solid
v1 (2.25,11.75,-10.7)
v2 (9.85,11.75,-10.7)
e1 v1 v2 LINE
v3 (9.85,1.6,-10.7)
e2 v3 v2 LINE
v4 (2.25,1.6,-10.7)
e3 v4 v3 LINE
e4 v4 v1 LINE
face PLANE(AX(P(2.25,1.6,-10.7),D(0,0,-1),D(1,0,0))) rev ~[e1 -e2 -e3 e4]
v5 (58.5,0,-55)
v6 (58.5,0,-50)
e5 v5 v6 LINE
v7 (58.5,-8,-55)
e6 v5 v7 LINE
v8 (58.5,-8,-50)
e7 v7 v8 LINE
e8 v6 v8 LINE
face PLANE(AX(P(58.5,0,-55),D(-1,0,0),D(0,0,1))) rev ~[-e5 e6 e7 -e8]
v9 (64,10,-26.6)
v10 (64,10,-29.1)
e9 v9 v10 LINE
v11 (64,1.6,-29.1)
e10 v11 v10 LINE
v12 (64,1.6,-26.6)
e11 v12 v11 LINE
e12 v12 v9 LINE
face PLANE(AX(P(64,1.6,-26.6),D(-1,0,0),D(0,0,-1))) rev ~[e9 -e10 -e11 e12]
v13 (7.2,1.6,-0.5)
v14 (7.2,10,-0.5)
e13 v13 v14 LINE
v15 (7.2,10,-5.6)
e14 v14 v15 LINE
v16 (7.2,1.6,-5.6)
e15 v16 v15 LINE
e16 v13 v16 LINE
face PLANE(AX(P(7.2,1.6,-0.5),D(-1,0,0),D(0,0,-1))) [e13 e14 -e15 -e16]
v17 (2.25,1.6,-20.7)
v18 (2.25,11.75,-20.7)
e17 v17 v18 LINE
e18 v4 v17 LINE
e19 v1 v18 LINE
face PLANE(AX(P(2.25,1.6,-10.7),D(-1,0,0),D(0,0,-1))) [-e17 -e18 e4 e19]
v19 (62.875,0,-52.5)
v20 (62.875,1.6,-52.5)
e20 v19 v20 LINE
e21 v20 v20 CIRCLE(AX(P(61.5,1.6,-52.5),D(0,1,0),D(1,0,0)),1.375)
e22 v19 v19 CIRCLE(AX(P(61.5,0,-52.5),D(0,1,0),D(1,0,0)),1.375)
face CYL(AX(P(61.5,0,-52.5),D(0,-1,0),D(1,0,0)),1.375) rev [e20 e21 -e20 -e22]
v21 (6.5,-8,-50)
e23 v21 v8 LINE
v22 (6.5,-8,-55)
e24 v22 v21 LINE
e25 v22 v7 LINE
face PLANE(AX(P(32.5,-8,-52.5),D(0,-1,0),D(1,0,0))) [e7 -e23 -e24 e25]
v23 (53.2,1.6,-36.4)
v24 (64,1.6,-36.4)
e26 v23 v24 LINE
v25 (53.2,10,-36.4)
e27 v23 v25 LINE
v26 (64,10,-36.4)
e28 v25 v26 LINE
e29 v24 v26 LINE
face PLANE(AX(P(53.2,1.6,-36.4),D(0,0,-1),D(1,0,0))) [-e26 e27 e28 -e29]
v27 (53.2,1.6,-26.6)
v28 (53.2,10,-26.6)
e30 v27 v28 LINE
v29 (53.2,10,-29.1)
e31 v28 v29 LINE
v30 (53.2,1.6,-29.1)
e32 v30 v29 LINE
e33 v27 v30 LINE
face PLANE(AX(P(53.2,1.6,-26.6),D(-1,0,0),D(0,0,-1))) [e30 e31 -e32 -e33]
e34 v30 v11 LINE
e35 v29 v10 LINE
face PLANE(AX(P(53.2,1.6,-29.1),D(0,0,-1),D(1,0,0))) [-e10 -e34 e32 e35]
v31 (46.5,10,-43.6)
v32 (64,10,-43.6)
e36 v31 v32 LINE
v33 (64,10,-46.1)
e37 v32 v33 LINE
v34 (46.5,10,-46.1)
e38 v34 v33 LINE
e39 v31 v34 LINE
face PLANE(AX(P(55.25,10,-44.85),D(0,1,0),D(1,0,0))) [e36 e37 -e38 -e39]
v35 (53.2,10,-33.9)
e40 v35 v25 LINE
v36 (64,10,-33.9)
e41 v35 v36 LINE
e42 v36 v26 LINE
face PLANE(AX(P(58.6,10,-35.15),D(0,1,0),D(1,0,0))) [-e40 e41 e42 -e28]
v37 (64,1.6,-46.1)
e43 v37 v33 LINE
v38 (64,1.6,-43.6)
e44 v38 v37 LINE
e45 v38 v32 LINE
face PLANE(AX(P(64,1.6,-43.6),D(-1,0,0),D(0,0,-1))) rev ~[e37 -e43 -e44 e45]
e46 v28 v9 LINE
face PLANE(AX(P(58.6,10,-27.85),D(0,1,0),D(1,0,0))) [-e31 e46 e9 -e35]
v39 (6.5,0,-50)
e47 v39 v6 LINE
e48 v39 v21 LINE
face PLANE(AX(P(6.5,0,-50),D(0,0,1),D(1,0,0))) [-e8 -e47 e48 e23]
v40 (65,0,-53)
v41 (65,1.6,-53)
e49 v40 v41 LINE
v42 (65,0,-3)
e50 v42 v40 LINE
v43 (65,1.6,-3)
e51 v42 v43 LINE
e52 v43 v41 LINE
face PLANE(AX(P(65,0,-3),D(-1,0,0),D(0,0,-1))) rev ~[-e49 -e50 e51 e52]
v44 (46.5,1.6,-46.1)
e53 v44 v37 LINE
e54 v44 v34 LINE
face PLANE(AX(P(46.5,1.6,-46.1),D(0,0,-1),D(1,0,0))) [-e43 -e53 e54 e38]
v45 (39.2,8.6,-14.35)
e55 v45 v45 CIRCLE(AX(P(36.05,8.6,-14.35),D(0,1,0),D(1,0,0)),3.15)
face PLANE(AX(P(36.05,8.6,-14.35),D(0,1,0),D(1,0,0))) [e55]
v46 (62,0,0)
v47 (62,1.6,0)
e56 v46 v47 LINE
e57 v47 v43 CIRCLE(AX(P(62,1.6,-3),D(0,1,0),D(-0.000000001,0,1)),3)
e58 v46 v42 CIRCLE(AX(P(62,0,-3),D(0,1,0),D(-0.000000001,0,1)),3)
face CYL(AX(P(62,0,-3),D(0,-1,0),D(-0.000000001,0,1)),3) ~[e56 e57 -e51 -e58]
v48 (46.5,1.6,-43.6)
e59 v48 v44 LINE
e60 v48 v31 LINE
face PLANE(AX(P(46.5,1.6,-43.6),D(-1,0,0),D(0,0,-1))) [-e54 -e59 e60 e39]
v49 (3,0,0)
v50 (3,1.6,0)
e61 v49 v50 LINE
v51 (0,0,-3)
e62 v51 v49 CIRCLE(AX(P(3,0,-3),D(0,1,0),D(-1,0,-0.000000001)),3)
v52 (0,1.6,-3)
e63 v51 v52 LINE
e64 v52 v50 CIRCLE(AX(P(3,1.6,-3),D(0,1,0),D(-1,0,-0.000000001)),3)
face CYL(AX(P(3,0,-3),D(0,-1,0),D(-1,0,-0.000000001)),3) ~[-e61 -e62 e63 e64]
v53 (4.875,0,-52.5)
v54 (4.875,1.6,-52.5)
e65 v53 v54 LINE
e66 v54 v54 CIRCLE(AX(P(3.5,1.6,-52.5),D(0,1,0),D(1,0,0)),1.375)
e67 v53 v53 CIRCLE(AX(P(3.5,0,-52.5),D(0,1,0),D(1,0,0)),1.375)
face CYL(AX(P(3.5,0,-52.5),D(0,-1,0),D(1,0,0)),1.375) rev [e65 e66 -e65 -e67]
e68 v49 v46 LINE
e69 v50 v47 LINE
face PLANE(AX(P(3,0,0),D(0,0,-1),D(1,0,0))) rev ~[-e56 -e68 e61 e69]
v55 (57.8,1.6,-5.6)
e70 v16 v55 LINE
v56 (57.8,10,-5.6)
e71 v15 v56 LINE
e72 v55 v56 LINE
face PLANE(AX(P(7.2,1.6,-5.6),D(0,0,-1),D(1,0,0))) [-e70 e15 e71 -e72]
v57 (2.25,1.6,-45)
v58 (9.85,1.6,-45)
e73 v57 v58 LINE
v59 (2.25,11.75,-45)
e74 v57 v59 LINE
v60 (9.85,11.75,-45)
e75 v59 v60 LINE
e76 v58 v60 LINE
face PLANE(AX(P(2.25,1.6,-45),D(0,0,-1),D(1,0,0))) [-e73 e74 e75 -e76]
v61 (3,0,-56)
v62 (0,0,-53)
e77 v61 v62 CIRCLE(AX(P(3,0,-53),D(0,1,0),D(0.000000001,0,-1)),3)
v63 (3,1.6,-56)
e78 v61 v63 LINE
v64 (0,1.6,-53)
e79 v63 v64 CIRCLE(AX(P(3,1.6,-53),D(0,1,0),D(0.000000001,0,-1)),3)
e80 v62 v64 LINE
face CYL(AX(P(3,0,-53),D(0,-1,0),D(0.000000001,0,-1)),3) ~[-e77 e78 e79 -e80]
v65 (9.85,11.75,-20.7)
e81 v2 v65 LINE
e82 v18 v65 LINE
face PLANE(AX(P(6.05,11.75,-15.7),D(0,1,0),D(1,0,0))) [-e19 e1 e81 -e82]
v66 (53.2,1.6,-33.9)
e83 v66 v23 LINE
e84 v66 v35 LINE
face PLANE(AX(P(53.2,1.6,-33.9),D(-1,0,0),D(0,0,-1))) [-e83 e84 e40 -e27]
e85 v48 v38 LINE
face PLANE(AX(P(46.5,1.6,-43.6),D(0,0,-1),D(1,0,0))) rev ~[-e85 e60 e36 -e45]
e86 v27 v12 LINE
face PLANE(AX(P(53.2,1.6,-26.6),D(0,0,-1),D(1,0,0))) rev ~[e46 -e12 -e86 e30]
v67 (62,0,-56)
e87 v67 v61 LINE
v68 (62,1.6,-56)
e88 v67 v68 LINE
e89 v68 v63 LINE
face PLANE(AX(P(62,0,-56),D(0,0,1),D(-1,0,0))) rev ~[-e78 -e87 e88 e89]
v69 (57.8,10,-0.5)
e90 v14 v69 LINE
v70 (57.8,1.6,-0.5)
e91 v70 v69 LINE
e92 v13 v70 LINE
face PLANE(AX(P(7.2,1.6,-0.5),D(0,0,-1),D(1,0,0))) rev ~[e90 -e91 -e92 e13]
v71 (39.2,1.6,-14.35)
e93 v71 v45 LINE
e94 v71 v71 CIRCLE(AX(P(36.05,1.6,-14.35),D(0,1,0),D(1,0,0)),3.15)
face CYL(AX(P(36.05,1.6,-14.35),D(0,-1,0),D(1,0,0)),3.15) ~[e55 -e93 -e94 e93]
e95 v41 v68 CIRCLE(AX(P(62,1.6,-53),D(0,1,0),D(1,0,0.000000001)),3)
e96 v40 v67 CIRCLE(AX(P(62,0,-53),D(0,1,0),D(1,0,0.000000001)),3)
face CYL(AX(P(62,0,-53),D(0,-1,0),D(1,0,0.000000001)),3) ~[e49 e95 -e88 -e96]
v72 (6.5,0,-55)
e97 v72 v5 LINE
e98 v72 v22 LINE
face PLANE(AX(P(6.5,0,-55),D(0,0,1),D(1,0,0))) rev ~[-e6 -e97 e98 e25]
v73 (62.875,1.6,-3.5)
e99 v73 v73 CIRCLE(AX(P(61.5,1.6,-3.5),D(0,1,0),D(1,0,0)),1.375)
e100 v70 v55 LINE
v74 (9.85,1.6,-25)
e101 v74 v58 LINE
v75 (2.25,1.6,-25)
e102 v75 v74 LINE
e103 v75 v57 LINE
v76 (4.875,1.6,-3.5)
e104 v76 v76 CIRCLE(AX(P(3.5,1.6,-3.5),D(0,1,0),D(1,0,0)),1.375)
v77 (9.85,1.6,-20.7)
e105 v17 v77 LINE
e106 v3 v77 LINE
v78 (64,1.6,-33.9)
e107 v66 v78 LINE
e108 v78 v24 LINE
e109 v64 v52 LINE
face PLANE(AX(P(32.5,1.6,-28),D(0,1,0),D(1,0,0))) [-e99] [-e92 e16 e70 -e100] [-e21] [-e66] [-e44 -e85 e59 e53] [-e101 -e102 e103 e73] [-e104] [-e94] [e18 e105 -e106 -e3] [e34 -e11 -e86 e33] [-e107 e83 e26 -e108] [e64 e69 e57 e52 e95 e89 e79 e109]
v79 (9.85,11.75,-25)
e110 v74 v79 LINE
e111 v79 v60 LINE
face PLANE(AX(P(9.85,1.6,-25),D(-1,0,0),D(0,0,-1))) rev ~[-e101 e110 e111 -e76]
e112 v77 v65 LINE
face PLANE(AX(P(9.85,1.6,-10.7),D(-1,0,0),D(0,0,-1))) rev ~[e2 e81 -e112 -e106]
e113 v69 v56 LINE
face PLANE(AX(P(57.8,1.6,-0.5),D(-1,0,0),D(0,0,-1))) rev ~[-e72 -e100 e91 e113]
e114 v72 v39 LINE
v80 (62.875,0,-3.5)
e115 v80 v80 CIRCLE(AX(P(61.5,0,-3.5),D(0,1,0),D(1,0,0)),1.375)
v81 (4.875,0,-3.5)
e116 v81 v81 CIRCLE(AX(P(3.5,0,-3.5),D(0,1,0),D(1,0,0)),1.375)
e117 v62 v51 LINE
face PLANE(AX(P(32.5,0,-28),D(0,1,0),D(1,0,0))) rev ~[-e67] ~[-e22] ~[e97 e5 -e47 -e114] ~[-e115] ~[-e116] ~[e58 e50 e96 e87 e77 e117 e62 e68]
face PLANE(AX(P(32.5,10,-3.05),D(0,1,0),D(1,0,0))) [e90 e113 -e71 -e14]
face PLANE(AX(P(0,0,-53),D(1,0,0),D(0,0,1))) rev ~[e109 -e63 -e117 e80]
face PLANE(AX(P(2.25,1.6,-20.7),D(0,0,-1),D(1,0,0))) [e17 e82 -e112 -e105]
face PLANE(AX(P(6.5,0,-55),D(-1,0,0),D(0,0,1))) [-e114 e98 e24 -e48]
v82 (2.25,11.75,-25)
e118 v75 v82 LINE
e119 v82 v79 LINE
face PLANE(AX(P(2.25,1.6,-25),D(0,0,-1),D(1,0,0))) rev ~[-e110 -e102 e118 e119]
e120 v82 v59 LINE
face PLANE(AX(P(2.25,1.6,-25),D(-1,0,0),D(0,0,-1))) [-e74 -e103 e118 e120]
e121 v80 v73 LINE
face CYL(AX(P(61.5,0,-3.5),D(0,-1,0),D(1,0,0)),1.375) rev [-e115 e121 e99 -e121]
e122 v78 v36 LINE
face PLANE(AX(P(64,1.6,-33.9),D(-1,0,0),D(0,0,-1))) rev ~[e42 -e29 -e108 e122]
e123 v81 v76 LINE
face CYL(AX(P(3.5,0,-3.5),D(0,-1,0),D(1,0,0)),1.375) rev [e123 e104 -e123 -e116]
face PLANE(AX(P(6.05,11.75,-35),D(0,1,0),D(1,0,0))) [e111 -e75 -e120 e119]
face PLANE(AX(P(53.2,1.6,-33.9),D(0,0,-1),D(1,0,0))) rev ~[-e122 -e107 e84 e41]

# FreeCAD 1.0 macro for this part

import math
import FreeCAD as App
import Part
import Sketcher
from FreeCAD import Vector


def add_polygon(sketch, points):
    """Adds a closed chain of lines whose ends are joined by coincident constraints."""
    first, n = sketch.GeometryCount, len(points)
    for a, b in zip(points, points[1:] + points[:1]):
        sketch.addGeometry(Part.LineSegment(App.Vector(*a, 0), App.Vector(*b, 0)), False)
    for i in range(n):
        sketch.addConstraint(Sketcher.Constraint("Coincident", first + i, 2, first + (i + 1) % n, 1))

doc = App.newDocument("Part")
body = doc.addObject("PartDesign::Body", "Body")

# Sketch on XZ plane
sketch1 = body.newObject("Sketcher::SketchObject", "Sketch")
sketch1.AttachmentSupport = (doc.getObject("XZ_Plane"), [""])
sketch1.MapMode = "FlatFace"
sketch1.addGeometry([
    Part.LineSegment(Vector(3, 0, 0), Vector(62, 0, 0)),  # 0
    Part.ArcOfCircle(Part.Circle(Vector(62, -3, 0), Vector(0, 0, 1), 3), math.radians(0), math.radians(90)),  # 1
    Part.LineSegment(Vector(65, -3, 0), Vector(65, -53, 0)),  # 2
    Part.ArcOfCircle(Part.Circle(Vector(62, -53, 0), Vector(0, 0, 1), 3), math.radians(-90), math.radians(0)),  # 3
    Part.LineSegment(Vector(62, -56, 0), Vector(3, -56, 0)),  # 4
    Part.ArcOfCircle(Part.Circle(Vector(3, -53, 0), Vector(0, 0, 1), 3), math.radians(180), math.radians(270)),  # 5
    Part.LineSegment(Vector(0, -53, 0), Vector(0, -3, 0)),  # 6
    Part.ArcOfCircle(Part.Circle(Vector(3, -3, 0), Vector(0, 0, 1), 3), math.radians(90), math.radians(180)),  # 7
    Part.Circle(Vector(3.5, -3.5, 0), Vector(0, 0, 1), 1.4),  # 8
    Part.Circle(Vector(61.5, -3.5, 0), Vector(0, 0, 1), 1.4),  # 9
    Part.Circle(Vector(3.5, -52.5, 0), Vector(0, 0, 1), 1.4),  # 10
    Part.Circle(Vector(61.5, -52.5, 0), Vector(0, 0, 1), 1.4),  # 11
], False)
sketch1.addConstraint([
    Sketcher.Constraint("Tangent", 0, 2, 1, 2),
    Sketcher.Constraint("Tangent", 1, 1, 2, 1),
    Sketcher.Constraint("Tangent", 2, 2, 3, 2),
    Sketcher.Constraint("Tangent", 3, 1, 4, 1),
    Sketcher.Constraint("Tangent", 4, 2, 5, 2),
    Sketcher.Constraint("Tangent", 5, 1, 6, 1),
    Sketcher.Constraint("Tangent", 6, 2, 7, 2),
    Sketcher.Constraint("Tangent", 7, 1, 0, 1),
    Sketcher.Constraint("Horizontal", 0),
    Sketcher.Constraint("Vertical", 2),
    Sketcher.Constraint("Horizontal", 4),
    Sketcher.Constraint("Vertical", 6),
    Sketcher.Constraint("Equal", 1, 3),
    Sketcher.Constraint("Equal", 3, 5),
    Sketcher.Constraint("Equal", 5, 7),
    Sketcher.Constraint("Equal", 8, 9),
    Sketcher.Constraint("Equal", 9, 10),
    Sketcher.Constraint("Equal", 10, 11),
    Sketcher.Constraint("PointOnObject", 0, 2, -1),
    Sketcher.Constraint("PointOnObject", 5, 1, -2),
    Sketcher.Constraint("Horizontal", 8, 3, 9, 3),
    Sketcher.Constraint("Horizontal", 10, 3, 11, 3),
    Sketcher.Constraint("Vertical", 8, 3, 10, 3),
    Sketcher.Constraint("Vertical", 9, 3, 11, 3),
    Sketcher.Constraint("Radius", 1, 3.0),
    Sketcher.Constraint("Diameter", 8, 2.75),
    Sketcher.Constraint("DistanceX", 0, 1, 0, 2, 59.0),
    Sketcher.Constraint("DistanceY", 2, 2, 2, 1, 50.0),
    Sketcher.Constraint("DistanceX", 8, 3, 9, 3, 58.0),
    Sketcher.Constraint("DistanceY", 10, 3, 8, 3, 49.0),
    Sketcher.Constraint("DistanceX", -1, 1, 8, 3, 3.5),
    Sketcher.Constraint("DistanceY", 8, 3, -1, 1, 3.5),
])
pad1 = body.newObject("PartDesign::Pad", "Pad")
pad1.Profile = sketch1
pad1.Length = 1.6
pad1.Reversed = True

# Sketch on XZ plane
sketch2 = body.newObject("Sketcher::SketchObject", "Sketch001")
sketch2.AttachmentSupport = (doc.getObject("XZ_Plane"), [""])
sketch2.MapMode = "FlatFace"
sketch2.AttachmentOffset = App.Placement(Vector(0, 0, -1.6), App.Rotation())
add_polygon(sketch2, [(2, -45), (2, -25), (10, -25), (10, -45)])  # lines 0-3
add_polygon(sketch2, [(2, -21), (2, -11), (10, -11), (10, -21)])  # lines 4-7
sketch2.addConstraint([
    Sketcher.Constraint("Vertical", 0),
    Sketcher.Constraint("Horizontal", 1),
    Sketcher.Constraint("Vertical", 2),
    Sketcher.Constraint("Horizontal", 3),
    Sketcher.Constraint("Vertical", 4),
    Sketcher.Constraint("Horizontal", 5),
    Sketcher.Constraint("Vertical", 6),
    Sketcher.Constraint("Horizontal", 7),
    Sketcher.Constraint("Vertical", 3, 2, 4, 2),
    Sketcher.Constraint("Vertical", 2, 2, 5, 2),
    Sketcher.Constraint("DistanceY", 0, 1, 0, 2, 20.0),
    Sketcher.Constraint("DistanceY", 4, 1, 4, 2, 10.0),
    Sketcher.Constraint("DistanceX", 1, 1, 1, 2, 7.6),
    Sketcher.Constraint("DistanceY", 0, 2, -1, 1, 25.0),
    Sketcher.Constraint("DistanceY", 4, 2, -1, 1, 10.7),
    Sketcher.Constraint("DistanceX", -1, 1, 0, 2, 2.25),
])
pad2 = body.newObject("PartDesign::Pad", "Pad001")
pad2.Profile = sketch2
pad2.Length = 10.15
pad2.Reversed = True

# Sketch on XZ plane
sketch3 = body.newObject("Sketcher::SketchObject", "Sketch002")
sketch3.AttachmentSupport = (doc.getObject("XZ_Plane"), [""])
sketch3.MapMode = "FlatFace"
sketch3.AttachmentOffset = App.Placement(Vector(0, 0, -1.6), App.Rotation())
add_polygon(sketch3, [(7, -6), (7, 0), (58, 0), (58, -6)])  # lines 0-3
sketch3.addConstraint([
    Sketcher.Constraint("Vertical", 0),
    Sketcher.Constraint("Horizontal", 1),
    Sketcher.Constraint("Vertical", 2),
    Sketcher.Constraint("Horizontal", 3),
    Sketcher.Constraint("DistanceX", 1, 1, 1, 2, 50.6),
    Sketcher.Constraint("DistanceY", 0, 1, 0, 2, 5.1),
    Sketcher.Constraint("DistanceX", -1, 1, 0, 2, 7.2),
    Sketcher.Constraint("DistanceY", 0, 2, -1, 1, 0.5),
])
pad3 = body.newObject("PartDesign::Pad", "Pad002")
pad3.Profile = sketch3
pad3.Length = 8.4
pad3.Reversed = True

# Sketch on XZ plane
sketch4 = body.newObject("Sketcher::SketchObject", "Sketch003")
sketch4.AttachmentSupport = (doc.getObject("XZ_Plane"), [""])
sketch4.MapMode = "FlatFace"
sketch4.AttachmentOffset = App.Placement(Vector(0, 0, -1.6), App.Rotation())
sketch4.addGeometry(Part.Circle(Vector(36, -14.3, 0), Vector(0, 0, 1), 3.1), False)
sketch4.addConstraint([
    Sketcher.Constraint("Diameter", 0, 6.3),
    Sketcher.Constraint("DistanceX", -1, 1, 0, 3, 36.05),
    Sketcher.Constraint("DistanceY", 0, 3, -1, 1, 14.35),
])
pad4 = body.newObject("PartDesign::Pad", "Pad003")
pad4.Profile = sketch4
pad4.Length = 7
pad4.Reversed = True

# Sketch on XZ plane
sketch5 = body.newObject("Sketcher::SketchObject", "Sketch004")
sketch5.AttachmentSupport = (doc.getObject("XZ_Plane"), [""])
sketch5.MapMode = "FlatFace"
sketch5.AttachmentOffset = App.Placement(Vector(0, 0, -1.6), App.Rotation())
add_polygon(sketch5, [(46.5, -46.1), (46.5, -43.6), (64, -43.6), (64, -46.1)])  # lines 0-3
add_polygon(sketch5, [(53.2, -36.4), (53.2, -33.9), (64, -33.9), (64, -36.4)])  # lines 4-7
add_polygon(sketch5, [(53.2, -29.1), (53.2, -26.6), (64, -26.6), (64, -29.1)])  # lines 8-11
sketch5.addConstraint([
    Sketcher.Constraint("Vertical", 0),
    Sketcher.Constraint("Horizontal", 1),
    Sketcher.Constraint("Vertical", 2),
    Sketcher.Constraint("Horizontal", 3),
    Sketcher.Constraint("Vertical", 4),
    Sketcher.Constraint("Horizontal", 5),
    Sketcher.Constraint("Vertical", 6),
    Sketcher.Constraint("Horizontal", 7),
    Sketcher.Constraint("Vertical", 8),
    Sketcher.Constraint("Horizontal", 9),
    Sketcher.Constraint("Vertical", 10),
    Sketcher.Constraint("Horizontal", 11),
    Sketcher.Constraint("Vertical", 2, 2, 5, 2),
    Sketcher.Constraint("Vertical", 7, 2, 8, 2),
    Sketcher.Constraint("Vertical", 6, 2, 9, 2),
    Sketcher.Constraint("Equal", 2, 4),
    Sketcher.Constraint("Equal", 6, 8),
    Sketcher.Constraint("DistanceX", 1, 1, 1, 2, 17.5),
    Sketcher.Constraint("DistanceX", 5, 1, 5, 2, 10.8),
    Sketcher.Constraint("DistanceY", 0, 1, 0, 2, 2.5),
    Sketcher.Constraint("DistanceX", -1, 1, 1, 2, 64.0),
    Sketcher.Constraint("DistanceY", 0, 2, 8, 2, 17.0),
    Sketcher.Constraint("DistanceY", 0, 2, -1, 1, 43.6),
    Sketcher.Constraint("DistanceY", 4, 2, -1, 1, 33.9),
])
pad5 = body.newObject("PartDesign::Pad", "Pad004")
pad5.Profile = sketch5
pad5.Length = 8.4
pad5.Reversed = True

# Sketch on XZ plane
sketch6 = body.newObject("Sketcher::SketchObject", "Sketch005")
sketch6.AttachmentSupport = (doc.getObject("XZ_Plane"), [""])
sketch6.MapMode = "FlatFace"
add_polygon(sketch6, [(6, -50), (6, -55), (58, -55), (58, -50)])  # lines 0-3
sketch6.addConstraint([
    Sketcher.Constraint("Vertical", 0),
    Sketcher.Constraint("Horizontal", 1),
    Sketcher.Constraint("Vertical", 2),
    Sketcher.Constraint("Horizontal", 3),
    Sketcher.Constraint("DistanceX", 1, 1, 1, 2, 52.0),
    Sketcher.Constraint("DistanceY", 0, 2, 0, 1, 5.0),
    Sketcher.Constraint("DistanceY", 0, 2, -1, 1, 55.0),
    Sketcher.Constraint("DistanceX", -1, 1, 0, 2, 6.5),
])
pad6 = body.newObject("PartDesign::Pad", "Pad005")
pad6.Profile = sketch6
pad6.Length = 8

doc.recompute()
